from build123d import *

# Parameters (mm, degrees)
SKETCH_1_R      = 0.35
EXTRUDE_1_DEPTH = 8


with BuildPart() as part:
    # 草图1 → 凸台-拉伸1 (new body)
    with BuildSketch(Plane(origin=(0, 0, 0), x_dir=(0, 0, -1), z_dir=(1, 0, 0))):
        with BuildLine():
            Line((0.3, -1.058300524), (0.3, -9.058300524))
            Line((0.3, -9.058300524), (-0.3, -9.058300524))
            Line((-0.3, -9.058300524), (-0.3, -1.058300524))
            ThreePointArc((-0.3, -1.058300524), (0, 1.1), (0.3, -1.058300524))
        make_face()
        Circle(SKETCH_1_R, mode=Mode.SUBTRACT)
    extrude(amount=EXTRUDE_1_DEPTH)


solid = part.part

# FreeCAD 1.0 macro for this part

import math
import FreeCAD as App
import Part
import Sketcher
from FreeCAD import Vector
Q = App.Units.Quantity

doc = App.newDocument("Part")
body = doc.addObject("PartDesign::Body", "Body")

# Sketch on YZ plane
sketch1 = body.newObject("Sketcher::SketchObject", "Sketch")
sketch1.AttachmentSupport = (doc.getObject("YZ_Plane"), [""])
sketch1.MapMode = "FlatFace"
sketch1.addGeometry(Part.LineSegment(Vector(-9.06, -0.3, 0), Vector(-1.06, -0.3, 0)), False)
sketch1.addGeometry(Part.ArcOfCircle(Part.Circle(Vector(0, 0, 0), Vector(0, 0, 1), 1.1), math.radians(-164), math.radians(164)), False)
sketch1.addGeometry(Part.LineSegment(Vector(-1.06, 0.3, 0), Vector(-9.06, 0.3, 0)), False)
sketch1.addGeometry(Part.LineSegment(Vector(-9.06, 0.3, 0), Vector(-9.06, -0.3, 0)), False)
sketch1.addGeometry(Part.Circle(Vector(0, 0, 0), Vector(0, 0, 1), 0.35), False)
sketch1.addConstraint(Sketcher.Constraint("Coincident", 0, 2, 1, 1))
sketch1.addConstraint(Sketcher.Constraint("Coincident", 1, 2, 2, 1))
sketch1.addConstraint(Sketcher.Constraint("Coincident", 2, 2, 3, 1))
sketch1.addConstraint(Sketcher.Constraint("Coincident", 3, 2, 0, 1))
sketch1.addConstraint(Sketcher.Constraint("Horizontal", 0))
sketch1.addConstraint(Sketcher.Constraint("Horizontal", 2))
sketch1.addConstraint(Sketcher.Constraint("Vertical", 3))
sketch1.addConstraint(Sketcher.Constraint("Coincident", 1, 3, -1, 1))
sketch1.addConstraint(Sketcher.Constraint("Coincident", 4, 3, -1, 1))
sketch1.addConstraint(Sketcher.Constraint("Vertical", 0, 2, 1, 2))
sketch1.addConstraint(Sketcher.Constraint("Diameter", 4, Q("0.7 mm")))
sketch1.addConstraint(Sketcher.Constraint("Radius", 1, Q("1.1 mm")))
sketch1.addConstraint(Sketcher.Constraint("DistanceX", 0, 1, 0, 2, Q("8 mm")))
sketch1.addConstraint(Sketcher.Constraint("DistanceY", 3, 2, 3, 1, Q("0.6 mm")))
pad1 = body.newObject("PartDesign::Pad", "Pad")
pad1.Profile = sketch1
pad1.Length = 8

doc.recompute()
